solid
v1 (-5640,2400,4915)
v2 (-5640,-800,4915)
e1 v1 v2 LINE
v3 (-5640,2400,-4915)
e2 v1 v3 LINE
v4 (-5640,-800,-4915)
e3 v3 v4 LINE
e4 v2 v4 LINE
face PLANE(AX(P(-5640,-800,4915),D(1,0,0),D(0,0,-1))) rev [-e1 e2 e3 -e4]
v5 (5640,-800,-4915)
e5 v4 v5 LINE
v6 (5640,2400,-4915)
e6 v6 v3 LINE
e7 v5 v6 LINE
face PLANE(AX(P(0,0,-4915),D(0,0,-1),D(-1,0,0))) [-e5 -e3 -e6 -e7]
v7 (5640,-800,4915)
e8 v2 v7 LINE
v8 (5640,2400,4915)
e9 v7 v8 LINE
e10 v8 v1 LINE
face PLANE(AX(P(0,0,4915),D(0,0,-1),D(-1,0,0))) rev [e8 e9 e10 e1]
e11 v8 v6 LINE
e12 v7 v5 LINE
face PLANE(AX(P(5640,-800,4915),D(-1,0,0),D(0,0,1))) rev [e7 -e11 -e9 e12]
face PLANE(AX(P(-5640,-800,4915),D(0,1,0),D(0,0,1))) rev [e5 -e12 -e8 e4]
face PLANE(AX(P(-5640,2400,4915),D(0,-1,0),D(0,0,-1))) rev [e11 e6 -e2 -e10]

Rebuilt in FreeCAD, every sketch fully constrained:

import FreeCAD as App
import Part
import Sketcher
from FreeCAD import Vector
Q = App.Units.Quantity

doc = App.newDocument("Part")
body = doc.addObject("PartDesign::Body", "Body")

# Sketch on XY plane
sketch1 = body.newObject("Sketcher::SketchObject", "Sketch")
sketch1.AttachmentSupport = (doc.getObject("XY_Plane"), [""])
sketch1.MapMode = "FlatFace"
sketch1.addGeometry(Part.LineSegment(Vector(-5640, 2400, 0), Vector(-5640, -800, 0)), False)
sketch1.addGeometry(Part.LineSegment(Vector(-5640, -800, 0), Vector(5640, -800, 0)), False)
sketch1.addGeometry(Part.LineSegment(Vector(5640, -800, 0), Vector(5640, 2400, 0)), False)
sketch1.addGeometry(Part.LineSegment(Vector(5640, 2400, 0), Vector(-5640, 2400, 0)), False)
sketch1.addConstraint(Sketcher.Constraint("Coincident", 0, 2, 1, 1))
sketch1.addConstraint(Sketcher.Constraint("Coincident", 1, 2, 2, 1))
sketch1.addConstraint(Sketcher.Constraint("Coincident", 2, 2, 3, 1))
sketch1.addConstraint(Sketcher.Constraint("Coincident", 3, 2, 0, 1))
sketch1.addConstraint(Sketcher.Constraint("Vertical", 0))
sketch1.addConstraint(Sketcher.Constraint("Horizontal", 1))
sketch1.addConstraint(Sketcher.Constraint("Vertical", 2))
sketch1.addConstraint(Sketcher.Constraint("Horizontal", 3))
sketch1.addConstraint(Sketcher.Constraint("DistanceX", 1, 1, 1, 2, Q("11280 mm")))
sketch1.addConstraint(Sketcher.Constraint("DistanceY", 0, 2, 0, 1, Q("3200 mm")))
sketch1.addConstraint(Sketcher.Constraint("DistanceX", 0, 2, -1, 1, Q("5640 mm")))
sketch1.addConstraint(Sketcher.Constraint("DistanceY", 0, 2, -1, 1, Q("800 mm")))
pad1 = body.newObject("PartDesign::Pad", "Pad")
pad1.Profile = sketch1
pad1.Length = 9830
pad1.Midplane = True

doc.recompute()
